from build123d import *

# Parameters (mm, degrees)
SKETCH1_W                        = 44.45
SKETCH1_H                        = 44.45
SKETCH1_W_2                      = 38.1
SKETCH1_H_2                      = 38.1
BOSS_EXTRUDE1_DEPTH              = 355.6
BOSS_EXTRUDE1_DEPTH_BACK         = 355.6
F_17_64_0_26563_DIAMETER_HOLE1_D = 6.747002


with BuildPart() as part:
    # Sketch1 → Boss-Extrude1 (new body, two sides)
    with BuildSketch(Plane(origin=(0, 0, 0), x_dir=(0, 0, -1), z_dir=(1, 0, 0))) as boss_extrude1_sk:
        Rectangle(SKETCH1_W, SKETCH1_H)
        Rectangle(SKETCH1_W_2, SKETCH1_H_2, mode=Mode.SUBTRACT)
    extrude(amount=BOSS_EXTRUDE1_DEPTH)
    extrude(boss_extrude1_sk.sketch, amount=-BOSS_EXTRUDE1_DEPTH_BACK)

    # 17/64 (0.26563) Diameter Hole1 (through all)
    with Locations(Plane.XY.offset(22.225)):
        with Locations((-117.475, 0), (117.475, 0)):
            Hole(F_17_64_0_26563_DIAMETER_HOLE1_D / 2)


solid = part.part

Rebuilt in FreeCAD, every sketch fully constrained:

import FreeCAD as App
import Part
import Sketcher

V = App.Vector
Q = App.Units.Quantity


def add_polygon(sketch, points):
    """Adds a closed chain of lines whose ends are joined by coincident constraints."""
    first, n = sketch.GeometryCount, len(points)
    for a, b in zip(points, points[1:] + points[:1]):
        sketch.addGeometry(Part.LineSegment(App.Vector(*a, 0), App.Vector(*b, 0)), False)
    for i in range(n):
        sketch.addConstraint(Sketcher.Constraint("Coincident", first + i, 2, first + (i + 1) % n, 1))

doc = App.newDocument("Part")
body = doc.addObject("PartDesign::Body", "Body")

sketch1 = body.newObject("Sketcher::SketchObject", "Sketch")
sketch1.AttachmentSupport = (doc.getObject("YZ_Plane"), [""])
sketch1.MapMode = "FlatFace"
add_polygon(sketch1, [(22.225, 22.225), (-22.225, 22.225), (-22.225, -22.225), (22.225, -22.225)])
add_polygon(sketch1, [(-19.05, -19.05), (-19.05, 19.05), (19.05, 19.05), (19.05, -19.05)])
sketch1.addConstraint(Sketcher.Constraint("Horizontal", 0))
sketch1.addConstraint(Sketcher.Constraint("Vertical", 1))
sketch1.addConstraint(Sketcher.Constraint("Horizontal", 2))
sketch1.addConstraint(Sketcher.Constraint("Vertical", 3))
sketch1.addConstraint(Sketcher.Constraint("Vertical", 4))
sketch1.addConstraint(Sketcher.Constraint("Horizontal", 5))
sketch1.addConstraint(Sketcher.Constraint("Vertical", 6))
sketch1.addConstraint(Sketcher.Constraint("Horizontal", 7))
sketch1.addConstraint(Sketcher.Constraint("Symmetric", 0, 2, 2, 2, -1, 1))
sketch1.addConstraint(Sketcher.Constraint("Symmetric", 4, 2, 6, 2, -1, 1))
sketch1.addConstraint(Sketcher.Constraint("Equal", 2, 1))
sketch1.addConstraint(Sketcher.Constraint("Equal", 7, 4))
sketch1.addConstraint(Sketcher.Constraint("DistanceX", 5, 1, 5, 2, Q("1.5 in")))
sketch1.addConstraint(Sketcher.Constraint("DistanceX", 0, 2, 0, 1, Q("1.75 in")))
pad1 = body.newObject("PartDesign::Pad", "Pad")
pad1.Profile = sketch1
pad1.Type = "TwoLengths"
pad1.Length = Q("14 in")
pad1.Length2 = Q("14 in")

sketch2 = body.newObject("Sketcher::SketchObject", "Sketch001")
sketch2.AttachmentSupport = (doc.getObject("XY_Plane"), [""])
sketch2.MapMode = "FlatFace"
sketch2.AttachmentOffset = App.Placement(V(0, 0, 0.875 * 25.4), App.Rotation())
sketch2.addGeometry(Part.Circle(V(-117.475, 0, 0), V(0, 0, 1), 3.373501), False)
sketch2.addGeometry(Part.Circle(V(117.475, 0, 0), V(0, 0, 1), 3.373501), False)
sketch2.addConstraint(Sketcher.Constraint("Equal", 0, 1))
sketch2.addConstraint(Sketcher.Constraint("Symmetric", 0, 3, 1, 3, -1, 1))
sketch2.addConstraint(Sketcher.Constraint("PointOnObject", 0, 3, -1))
sketch2.addConstraint(Sketcher.Constraint("DistanceX", 0, 3, 1, 3, Q("9.25 in")))
sketch2.addConstraint(Sketcher.Constraint("Diameter", 0, 6.747002))
doc.recompute()
hole = body.newObject("PartDesign::Hole", "Hole")
hole.Profile = sketch2
hole.ThreadType = "None"
hole.Diameter = 6.747002
hole.DepthType = "ThroughAll"

doc.recompute()
